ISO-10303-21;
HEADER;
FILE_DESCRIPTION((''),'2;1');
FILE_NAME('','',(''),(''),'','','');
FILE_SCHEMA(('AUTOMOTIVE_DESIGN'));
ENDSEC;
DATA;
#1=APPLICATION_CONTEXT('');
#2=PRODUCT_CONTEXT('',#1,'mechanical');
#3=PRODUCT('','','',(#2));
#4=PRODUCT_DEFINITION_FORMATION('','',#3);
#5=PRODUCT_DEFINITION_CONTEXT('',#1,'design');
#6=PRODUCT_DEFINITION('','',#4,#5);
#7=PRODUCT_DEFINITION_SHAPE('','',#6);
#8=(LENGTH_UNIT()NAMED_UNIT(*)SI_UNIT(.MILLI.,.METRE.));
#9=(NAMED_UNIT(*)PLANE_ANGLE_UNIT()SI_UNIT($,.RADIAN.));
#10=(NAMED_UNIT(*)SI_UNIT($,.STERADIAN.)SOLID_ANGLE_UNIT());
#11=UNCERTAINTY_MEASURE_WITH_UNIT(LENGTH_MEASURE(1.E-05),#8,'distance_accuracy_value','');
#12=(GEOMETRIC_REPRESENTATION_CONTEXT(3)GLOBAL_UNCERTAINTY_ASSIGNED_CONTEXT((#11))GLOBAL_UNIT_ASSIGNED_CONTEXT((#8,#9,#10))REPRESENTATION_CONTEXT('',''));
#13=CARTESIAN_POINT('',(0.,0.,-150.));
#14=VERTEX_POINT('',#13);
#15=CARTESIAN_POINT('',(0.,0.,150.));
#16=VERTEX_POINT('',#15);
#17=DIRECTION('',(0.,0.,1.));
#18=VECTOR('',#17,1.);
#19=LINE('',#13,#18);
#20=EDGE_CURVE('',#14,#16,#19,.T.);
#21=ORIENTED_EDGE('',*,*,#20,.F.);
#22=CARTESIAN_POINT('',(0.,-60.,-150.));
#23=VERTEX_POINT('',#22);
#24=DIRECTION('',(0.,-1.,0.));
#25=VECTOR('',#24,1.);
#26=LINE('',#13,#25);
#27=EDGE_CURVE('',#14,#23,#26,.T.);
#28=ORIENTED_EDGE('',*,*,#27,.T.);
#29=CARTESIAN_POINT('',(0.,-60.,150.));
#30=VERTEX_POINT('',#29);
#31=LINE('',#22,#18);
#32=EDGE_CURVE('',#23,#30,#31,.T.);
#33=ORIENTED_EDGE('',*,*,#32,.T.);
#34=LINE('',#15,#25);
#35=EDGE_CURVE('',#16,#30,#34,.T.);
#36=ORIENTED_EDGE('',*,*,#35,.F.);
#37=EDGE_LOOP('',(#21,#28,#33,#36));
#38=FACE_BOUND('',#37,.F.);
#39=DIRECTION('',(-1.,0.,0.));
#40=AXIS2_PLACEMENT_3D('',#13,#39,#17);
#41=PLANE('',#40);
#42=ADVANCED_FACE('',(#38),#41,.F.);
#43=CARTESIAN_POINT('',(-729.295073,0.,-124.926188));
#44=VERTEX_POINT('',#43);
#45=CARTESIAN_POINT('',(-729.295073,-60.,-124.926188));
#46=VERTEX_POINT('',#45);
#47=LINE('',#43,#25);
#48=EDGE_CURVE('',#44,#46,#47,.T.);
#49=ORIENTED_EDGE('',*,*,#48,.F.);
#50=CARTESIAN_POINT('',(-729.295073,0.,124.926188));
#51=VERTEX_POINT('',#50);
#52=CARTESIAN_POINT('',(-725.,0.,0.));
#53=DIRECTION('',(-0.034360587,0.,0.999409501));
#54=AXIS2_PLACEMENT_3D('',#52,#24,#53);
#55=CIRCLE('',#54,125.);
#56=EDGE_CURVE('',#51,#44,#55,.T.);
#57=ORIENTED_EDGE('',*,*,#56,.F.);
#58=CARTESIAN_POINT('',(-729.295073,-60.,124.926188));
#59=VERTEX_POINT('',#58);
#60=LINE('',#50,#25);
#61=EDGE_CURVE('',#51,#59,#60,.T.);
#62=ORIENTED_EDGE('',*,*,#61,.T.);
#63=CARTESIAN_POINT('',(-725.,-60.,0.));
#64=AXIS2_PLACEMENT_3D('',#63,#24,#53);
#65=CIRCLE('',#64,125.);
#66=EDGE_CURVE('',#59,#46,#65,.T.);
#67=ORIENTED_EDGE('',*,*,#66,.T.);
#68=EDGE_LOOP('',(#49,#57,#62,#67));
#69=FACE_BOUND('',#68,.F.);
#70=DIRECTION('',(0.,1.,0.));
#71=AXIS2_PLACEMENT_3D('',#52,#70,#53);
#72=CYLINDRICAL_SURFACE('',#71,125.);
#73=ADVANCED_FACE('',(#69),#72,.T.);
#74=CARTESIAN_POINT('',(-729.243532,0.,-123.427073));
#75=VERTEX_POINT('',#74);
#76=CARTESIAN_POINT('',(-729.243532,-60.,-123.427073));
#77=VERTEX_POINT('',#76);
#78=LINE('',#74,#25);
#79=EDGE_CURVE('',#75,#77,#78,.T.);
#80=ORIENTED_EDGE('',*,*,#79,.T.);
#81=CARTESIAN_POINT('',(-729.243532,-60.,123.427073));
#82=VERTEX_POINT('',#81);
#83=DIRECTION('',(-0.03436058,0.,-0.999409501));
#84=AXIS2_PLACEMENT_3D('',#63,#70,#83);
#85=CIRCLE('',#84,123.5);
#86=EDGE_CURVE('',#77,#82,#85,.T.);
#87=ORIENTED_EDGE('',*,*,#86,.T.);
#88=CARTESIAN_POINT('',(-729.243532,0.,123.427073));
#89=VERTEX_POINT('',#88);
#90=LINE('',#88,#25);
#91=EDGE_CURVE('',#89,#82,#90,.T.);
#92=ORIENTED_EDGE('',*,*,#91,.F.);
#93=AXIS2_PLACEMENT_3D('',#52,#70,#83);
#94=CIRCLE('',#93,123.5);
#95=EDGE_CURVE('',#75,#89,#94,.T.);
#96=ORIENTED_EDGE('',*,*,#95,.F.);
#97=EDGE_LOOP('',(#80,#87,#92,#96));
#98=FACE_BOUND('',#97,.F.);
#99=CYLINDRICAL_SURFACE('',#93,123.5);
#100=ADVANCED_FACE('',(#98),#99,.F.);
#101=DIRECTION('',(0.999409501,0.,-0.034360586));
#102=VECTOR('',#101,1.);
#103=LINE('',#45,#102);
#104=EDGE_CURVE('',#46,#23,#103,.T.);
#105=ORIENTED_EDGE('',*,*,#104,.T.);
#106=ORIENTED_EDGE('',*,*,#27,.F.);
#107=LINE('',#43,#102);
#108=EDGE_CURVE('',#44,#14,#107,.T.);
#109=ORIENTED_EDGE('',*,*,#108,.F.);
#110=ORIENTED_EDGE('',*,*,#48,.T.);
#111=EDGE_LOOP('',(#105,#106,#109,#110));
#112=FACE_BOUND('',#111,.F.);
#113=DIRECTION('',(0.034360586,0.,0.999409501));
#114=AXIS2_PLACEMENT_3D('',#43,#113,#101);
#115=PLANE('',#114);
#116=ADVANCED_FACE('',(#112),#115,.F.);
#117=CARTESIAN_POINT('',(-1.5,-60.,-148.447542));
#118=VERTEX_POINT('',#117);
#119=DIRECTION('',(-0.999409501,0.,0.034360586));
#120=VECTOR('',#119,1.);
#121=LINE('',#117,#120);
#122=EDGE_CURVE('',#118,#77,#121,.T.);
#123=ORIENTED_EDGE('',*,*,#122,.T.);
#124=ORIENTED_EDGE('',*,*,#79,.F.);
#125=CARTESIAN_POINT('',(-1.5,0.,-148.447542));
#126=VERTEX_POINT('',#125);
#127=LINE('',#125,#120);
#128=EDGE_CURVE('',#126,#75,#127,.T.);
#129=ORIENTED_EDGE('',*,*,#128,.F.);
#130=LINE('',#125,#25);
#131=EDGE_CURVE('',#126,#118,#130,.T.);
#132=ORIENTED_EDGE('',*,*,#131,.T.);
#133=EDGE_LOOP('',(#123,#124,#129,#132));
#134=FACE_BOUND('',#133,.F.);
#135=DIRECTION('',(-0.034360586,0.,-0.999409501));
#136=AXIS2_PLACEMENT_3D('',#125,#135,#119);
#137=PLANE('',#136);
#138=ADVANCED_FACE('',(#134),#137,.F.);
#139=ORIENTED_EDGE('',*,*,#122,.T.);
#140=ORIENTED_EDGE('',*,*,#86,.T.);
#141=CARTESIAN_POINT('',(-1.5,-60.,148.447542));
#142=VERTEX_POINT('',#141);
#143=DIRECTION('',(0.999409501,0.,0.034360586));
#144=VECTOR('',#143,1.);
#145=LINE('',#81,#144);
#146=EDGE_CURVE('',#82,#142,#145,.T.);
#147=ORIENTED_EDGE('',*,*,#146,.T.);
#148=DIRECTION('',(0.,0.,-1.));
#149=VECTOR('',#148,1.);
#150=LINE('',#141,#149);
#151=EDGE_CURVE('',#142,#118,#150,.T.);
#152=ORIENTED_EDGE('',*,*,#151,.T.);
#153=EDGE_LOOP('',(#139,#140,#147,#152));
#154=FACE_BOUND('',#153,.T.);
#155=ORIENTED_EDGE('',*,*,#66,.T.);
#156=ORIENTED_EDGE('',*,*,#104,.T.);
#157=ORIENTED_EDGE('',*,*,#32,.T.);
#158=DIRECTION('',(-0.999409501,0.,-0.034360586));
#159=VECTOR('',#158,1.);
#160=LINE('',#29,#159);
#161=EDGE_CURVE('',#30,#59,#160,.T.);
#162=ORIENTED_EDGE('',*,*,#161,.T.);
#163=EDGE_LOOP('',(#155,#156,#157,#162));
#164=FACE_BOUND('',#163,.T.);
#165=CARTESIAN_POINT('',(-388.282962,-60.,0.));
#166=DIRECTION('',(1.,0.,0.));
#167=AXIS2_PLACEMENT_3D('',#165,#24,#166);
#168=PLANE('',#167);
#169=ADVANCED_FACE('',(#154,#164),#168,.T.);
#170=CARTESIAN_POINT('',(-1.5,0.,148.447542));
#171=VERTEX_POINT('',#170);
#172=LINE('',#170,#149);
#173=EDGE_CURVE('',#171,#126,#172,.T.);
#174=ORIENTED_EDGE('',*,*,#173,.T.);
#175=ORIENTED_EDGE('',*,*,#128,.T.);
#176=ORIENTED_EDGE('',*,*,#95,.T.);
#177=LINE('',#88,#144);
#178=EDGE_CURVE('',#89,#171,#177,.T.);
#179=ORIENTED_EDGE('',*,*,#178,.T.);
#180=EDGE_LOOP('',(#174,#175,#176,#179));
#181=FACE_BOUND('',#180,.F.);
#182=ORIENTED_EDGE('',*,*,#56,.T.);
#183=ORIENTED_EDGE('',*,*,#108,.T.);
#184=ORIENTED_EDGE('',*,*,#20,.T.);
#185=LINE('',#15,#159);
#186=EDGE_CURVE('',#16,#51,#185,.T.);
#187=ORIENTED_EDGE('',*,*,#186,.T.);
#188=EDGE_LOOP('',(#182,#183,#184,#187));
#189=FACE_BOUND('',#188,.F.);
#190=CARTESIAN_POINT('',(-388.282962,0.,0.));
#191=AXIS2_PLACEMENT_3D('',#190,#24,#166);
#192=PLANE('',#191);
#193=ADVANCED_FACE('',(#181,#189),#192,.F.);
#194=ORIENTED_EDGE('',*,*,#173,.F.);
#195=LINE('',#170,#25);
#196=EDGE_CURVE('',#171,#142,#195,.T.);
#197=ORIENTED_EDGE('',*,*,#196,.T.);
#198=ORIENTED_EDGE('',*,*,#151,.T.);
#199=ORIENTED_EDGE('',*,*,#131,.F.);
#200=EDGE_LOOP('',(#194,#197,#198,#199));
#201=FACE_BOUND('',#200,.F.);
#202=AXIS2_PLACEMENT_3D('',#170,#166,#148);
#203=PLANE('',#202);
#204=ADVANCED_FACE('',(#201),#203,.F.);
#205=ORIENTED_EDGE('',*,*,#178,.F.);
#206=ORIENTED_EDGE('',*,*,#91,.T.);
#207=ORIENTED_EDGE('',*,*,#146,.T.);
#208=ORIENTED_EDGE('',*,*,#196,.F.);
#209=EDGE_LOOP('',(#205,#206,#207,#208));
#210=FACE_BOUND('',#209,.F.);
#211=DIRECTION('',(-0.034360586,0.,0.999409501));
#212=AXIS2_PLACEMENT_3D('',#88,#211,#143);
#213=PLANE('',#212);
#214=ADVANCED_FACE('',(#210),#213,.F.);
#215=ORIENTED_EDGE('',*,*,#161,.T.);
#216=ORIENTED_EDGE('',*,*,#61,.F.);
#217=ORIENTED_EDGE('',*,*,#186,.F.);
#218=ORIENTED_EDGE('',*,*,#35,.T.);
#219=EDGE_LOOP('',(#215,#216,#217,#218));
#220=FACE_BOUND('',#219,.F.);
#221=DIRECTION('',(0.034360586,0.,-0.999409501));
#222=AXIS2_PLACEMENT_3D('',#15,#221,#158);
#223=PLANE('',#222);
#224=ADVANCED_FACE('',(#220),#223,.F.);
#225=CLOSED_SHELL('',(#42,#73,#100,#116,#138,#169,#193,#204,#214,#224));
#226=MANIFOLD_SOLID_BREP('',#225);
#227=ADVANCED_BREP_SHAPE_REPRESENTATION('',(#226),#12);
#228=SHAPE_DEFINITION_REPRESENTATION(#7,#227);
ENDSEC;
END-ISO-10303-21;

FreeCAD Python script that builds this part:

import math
import FreeCAD as App
import Part
import Sketcher
Q = App.Units.Quantity

doc = App.newDocument("Part")
body = doc.addObject("PartDesign::Body", "Body")

# Sketch on XZ plane
sketch1 = body.newObject("Sketcher::SketchObject", "Sketch")
sketch1.AttachmentSupport = (doc.getObject("XZ_Plane"), [""])
sketch1.MapMode = "FlatFace"
sketch1.addGeometry(Part.LineSegment(App.Vector(0, -150, 0), App.Vector(0, 150, 0)), False)
sketch1.addGeometry(Part.LineSegment(App.Vector(0, 150, 0), App.Vector(-729, 125, 0)), False)
sketch1.addGeometry(Part.ArcOfCircle(Part.Circle(App.Vector(-725, 0, 0), App.Vector(0, 0, 1), 125), math.radians(92), math.radians(268)), False)
sketch1.addGeometry(Part.LineSegment(App.Vector(-729, -125, 0), App.Vector(0, -150, 0)), False)
sketch1.addGeometry(Part.LineSegment(App.Vector(-729, 123, 0), App.Vector(-2, 148, 0)), False)
sketch1.addGeometry(Part.LineSegment(App.Vector(-2, 148, 0), App.Vector(-2, -148, 0)), False)
sketch1.addGeometry(Part.LineSegment(App.Vector(-2, -148, 0), App.Vector(-729, -123, 0)), False)
sketch1.addGeometry(Part.ArcOfCircle(Part.Circle(App.Vector(-725, 0, 0), App.Vector(0, 0, 1), 123), math.radians(92), math.radians(268)), False)
sketch1.addConstraint(Sketcher.Constraint("Coincident", 0, 2, 1, 1))
sketch1.addConstraint(Sketcher.Constraint("Tangent", 1, 2, 2, 1))
sketch1.addConstraint(Sketcher.Constraint("Tangent", 2, 2, 3, 1))
sketch1.addConstraint(Sketcher.Constraint("Coincident", 3, 2, 0, 1))
sketch1.addConstraint(Sketcher.Constraint("Coincident", 4, 2, 5, 1))
sketch1.addConstraint(Sketcher.Constraint("Coincident", 5, 2, 6, 1))
sketch1.addConstraint(Sketcher.Constraint("Tangent", 6, 2, 7, 2))
sketch1.addConstraint(Sketcher.Constraint("Tangent", 7, 1, 4, 1))
sketch1.addConstraint(Sketcher.Constraint("Vertical", 0))
sketch1.addConstraint(Sketcher.Constraint("Vertical", 5))
sketch1.addConstraint(Sketcher.Constraint("Coincident", 7, 3, 2, 3))
sketch1.addConstraint(Sketcher.Constraint("Symmetric", 0, 2, 3, 2, -1, 1))
sketch1.addConstraint(Sketcher.Constraint("PointOnObject", 2, 3, -1))
sketch1.addConstraint(Sketcher.Constraint("Parallel", 1, 4))
sketch1.addConstraint(Sketcher.Constraint("Parallel", 3, 6))
sketch1.addConstraint(Sketcher.Constraint("Radius", 2, Q("125 mm")))
sketch1.addConstraint(Sketcher.Constraint("Radius", 7, Q("123.5 mm")))
sketch1.addConstraint(Sketcher.Constraint("DistanceY", 0, 1, 0, 2, Q("300 mm")))
sketch1.addConstraint(Sketcher.Constraint("DistanceX", 2, 3, -1, 1, Q("725 mm")))
sketch1.addConstraint(Sketcher.Constraint("DistanceX", 4, 2, -1, 1, Q("1.5 mm")))
pad1 = body.newObject("PartDesign::Pad", "Pad")
pad1.Profile = sketch1
pad1.Length = 60

doc.recompute()
